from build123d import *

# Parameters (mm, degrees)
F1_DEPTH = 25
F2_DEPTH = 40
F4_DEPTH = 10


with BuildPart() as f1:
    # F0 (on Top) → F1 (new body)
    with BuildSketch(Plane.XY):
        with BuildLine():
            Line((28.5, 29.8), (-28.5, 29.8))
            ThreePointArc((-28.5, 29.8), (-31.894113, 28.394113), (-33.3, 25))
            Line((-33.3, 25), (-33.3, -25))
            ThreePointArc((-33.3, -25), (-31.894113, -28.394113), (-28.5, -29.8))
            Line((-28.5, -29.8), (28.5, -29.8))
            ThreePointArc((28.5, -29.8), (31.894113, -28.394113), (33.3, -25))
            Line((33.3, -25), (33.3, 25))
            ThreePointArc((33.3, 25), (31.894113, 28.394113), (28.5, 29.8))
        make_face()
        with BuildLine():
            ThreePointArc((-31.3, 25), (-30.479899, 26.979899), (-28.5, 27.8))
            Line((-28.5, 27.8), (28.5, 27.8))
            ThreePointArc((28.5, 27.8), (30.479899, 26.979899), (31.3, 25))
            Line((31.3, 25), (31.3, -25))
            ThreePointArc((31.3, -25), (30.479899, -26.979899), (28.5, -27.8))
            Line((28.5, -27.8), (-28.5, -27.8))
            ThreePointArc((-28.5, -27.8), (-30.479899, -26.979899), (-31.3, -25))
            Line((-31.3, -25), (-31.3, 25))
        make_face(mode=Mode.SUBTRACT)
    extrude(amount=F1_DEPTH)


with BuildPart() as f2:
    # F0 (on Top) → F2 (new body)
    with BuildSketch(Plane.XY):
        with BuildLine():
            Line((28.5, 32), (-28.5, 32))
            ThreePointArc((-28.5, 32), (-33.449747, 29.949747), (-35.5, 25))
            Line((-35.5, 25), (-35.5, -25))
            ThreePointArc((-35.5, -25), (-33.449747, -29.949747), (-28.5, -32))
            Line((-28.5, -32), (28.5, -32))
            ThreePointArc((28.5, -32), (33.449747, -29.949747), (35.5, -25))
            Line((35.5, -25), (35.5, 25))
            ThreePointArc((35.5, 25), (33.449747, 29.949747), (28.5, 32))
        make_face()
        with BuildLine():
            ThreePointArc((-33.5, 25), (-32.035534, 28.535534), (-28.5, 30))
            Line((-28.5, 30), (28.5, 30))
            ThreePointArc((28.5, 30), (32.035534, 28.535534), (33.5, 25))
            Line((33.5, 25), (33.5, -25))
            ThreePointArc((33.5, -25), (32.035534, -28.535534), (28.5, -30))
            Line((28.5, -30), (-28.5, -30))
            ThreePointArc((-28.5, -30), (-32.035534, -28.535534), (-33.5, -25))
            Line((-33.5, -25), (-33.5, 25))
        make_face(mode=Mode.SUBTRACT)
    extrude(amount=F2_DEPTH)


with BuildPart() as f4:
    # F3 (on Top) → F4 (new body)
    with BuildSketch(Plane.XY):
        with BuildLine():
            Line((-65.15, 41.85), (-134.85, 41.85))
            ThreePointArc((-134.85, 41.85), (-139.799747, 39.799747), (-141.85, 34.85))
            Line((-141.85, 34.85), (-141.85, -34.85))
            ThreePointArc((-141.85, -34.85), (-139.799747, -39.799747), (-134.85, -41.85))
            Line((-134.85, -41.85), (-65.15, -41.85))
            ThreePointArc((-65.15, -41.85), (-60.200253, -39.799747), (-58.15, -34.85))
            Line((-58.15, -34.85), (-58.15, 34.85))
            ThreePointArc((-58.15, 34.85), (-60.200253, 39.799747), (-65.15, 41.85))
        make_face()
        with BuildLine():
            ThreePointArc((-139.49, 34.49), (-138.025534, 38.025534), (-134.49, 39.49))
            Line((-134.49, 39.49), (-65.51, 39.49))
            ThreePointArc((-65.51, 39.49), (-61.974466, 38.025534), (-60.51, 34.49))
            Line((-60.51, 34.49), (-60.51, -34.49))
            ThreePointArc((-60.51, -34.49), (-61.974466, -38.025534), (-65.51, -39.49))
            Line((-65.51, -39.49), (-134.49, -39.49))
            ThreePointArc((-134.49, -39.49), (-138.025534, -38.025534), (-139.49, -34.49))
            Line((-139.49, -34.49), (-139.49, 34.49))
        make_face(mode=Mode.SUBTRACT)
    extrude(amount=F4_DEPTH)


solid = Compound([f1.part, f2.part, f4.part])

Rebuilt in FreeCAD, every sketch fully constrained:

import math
import FreeCAD as App
import Part
import Sketcher
Q = App.Units.Quantity

doc = App.newDocument("Part")
params = doc.addObject("Spreadsheet::Sheet", "Params")
for row, (alias, value) in enumerate([
    ("sketch1_radius", "4.799998 mm"),
    ("sketch1_radius2", "2.8 mm"),
    ("sketch1_width", "57 mm"),
    ("sketch1_height", "50 mm"),
    ("pad1_length", "25 mm"),
    ("sketch2_radius", "7.000002 mm"),
    ("sketch2_radius2", "5 mm"),
    ("sketch2_width", "57 mm"),
    ("sketch2_height", "50 mm"),
    ("pad2_length", "40 mm"),
    ("sketch3_radius", "7.000002 mm"),
    ("sketch3_radius2", "5 mm"),
    ("sketch3_width", "69.7 mm"),
    ("sketch3_width2", "68.98 mm"),
    ("pad3_length", "10 mm"),
], start=1):
    params.set(f"A{row}", alias)
    params.set(f"B{row}", "=" + value)
    params.setAlias(f"B{row}", alias)

body = doc.addObject("PartDesign::Body", "Body")

# Sketch on XY plane
sketch1 = body.newObject("Sketcher::SketchObject", "Sketch")
sketch1.AttachmentSupport = (doc.getObject("XY_Plane"), [""])
sketch1.MapMode = "FlatFace"
sketch1.addGeometry([
    Part.LineSegment(App.Vector(28.5, 29.8, 0), App.Vector(-28.5, 29.8, 0)),  # 0
    Part.ArcOfCircle(Part.Circle(App.Vector(-28.500002, 25.000002, 0), App.Vector(0, 0, 1), 4.799998), math.radians(89.999982), math.radians(180.000018)),  # 1
    Part.LineSegment(App.Vector(-33.3, 25, 0), App.Vector(-33.3, -25, 0)),  # 2
    Part.ArcOfCircle(Part.Circle(App.Vector(-28.500002, -25.000002, 0), App.Vector(0, 0, 1), 4.799998), math.radians(179.999982), math.radians(270.000018)),  # 3
    Part.LineSegment(App.Vector(-28.5, -29.8, 0), App.Vector(28.5, -29.8, 0)),  # 4
    Part.ArcOfCircle(Part.Circle(App.Vector(28.500002, -25.000002, 0), App.Vector(0, 0, 1), 4.799998), math.radians(-90.000018), math.radians(0.000018)),  # 5
    Part.LineSegment(App.Vector(33.3, -25, 0), App.Vector(33.3, 25, 0)),  # 6
    Part.ArcOfCircle(Part.Circle(App.Vector(28.500002, 25.000002, 0), App.Vector(0, 0, 1), 4.799998), math.radians(-0.000018), math.radians(90.000018)),  # 7
    Part.LineSegment(App.Vector(-31.3, -25, 0), App.Vector(-31.3, 25, 0)),  # 8
    Part.ArcOfCircle(Part.Circle(App.Vector(-28.5, 25, 0), App.Vector(0, 0, 1), 2.8), math.radians(89.999999), math.radians(180.000001)),  # 9
    Part.LineSegment(App.Vector(-28.5, 27.8, 0), App.Vector(28.5, 27.8, 0)),  # 10
    Part.ArcOfCircle(Part.Circle(App.Vector(28.5, 25, 0), App.Vector(0, 0, 1), 2.8), math.radians(-0.000001), math.radians(90.000001)),  # 11
    Part.LineSegment(App.Vector(31.3, 25, 0), App.Vector(31.3, -25, 0)),  # 12
    Part.ArcOfCircle(Part.Circle(App.Vector(28.5, -25, 0), App.Vector(0, 0, 1), 2.8), math.radians(-90.000001), math.radians(0.000001)),  # 13
    Part.LineSegment(App.Vector(28.5, -27.8, 0), App.Vector(-28.5, -27.8, 0)),  # 14
    Part.ArcOfCircle(Part.Circle(App.Vector(-28.5, -25, 0), App.Vector(0, 0, 1), 2.8), math.radians(179.999999), math.radians(270.000001)),  # 15
], False)
sketch1.addConstraint([
    Sketcher.Constraint("Tangent", 0, 2, 1, 1),
    Sketcher.Constraint("Tangent", 1, 2, 2, 1),
    Sketcher.Constraint("Tangent", 2, 2, 3, 1),
    Sketcher.Constraint("Tangent", 3, 2, 4, 1),
    Sketcher.Constraint("Tangent", 4, 2, 5, 1),
    Sketcher.Constraint("Tangent", 5, 2, 6, 1),
    Sketcher.Constraint("Tangent", 6, 2, 7, 1),
    Sketcher.Constraint("Tangent", 7, 2, 0, 1),
    Sketcher.Constraint("Tangent", 8, 2, 9, 2),
    Sketcher.Constraint("Tangent", 9, 1, 10, 1),
    Sketcher.Constraint("Tangent", 10, 2, 11, 2),
    Sketcher.Constraint("Tangent", 11, 1, 12, 1),
    Sketcher.Constraint("Tangent", 12, 2, 13, 2),
    Sketcher.Constraint("Tangent", 13, 1, 14, 1),
    Sketcher.Constraint("Tangent", 14, 2, 15, 2),
    Sketcher.Constraint("Tangent", 15, 1, 8, 1),
    Sketcher.Constraint("Horizontal", 0),
    Sketcher.Constraint("Vertical", 2),
    Sketcher.Constraint("Horizontal", 4),
    Sketcher.Constraint("Vertical", 6),
    Sketcher.Constraint("Vertical", 8),
    Sketcher.Constraint("Horizontal", 10),
    Sketcher.Constraint("Vertical", 12),
    Sketcher.Constraint("Horizontal", 14),
    Sketcher.Constraint("Coincident", 9, 3, 1, 3),
    Sketcher.Constraint("Coincident", 11, 3, 7, 3),
    Sketcher.Constraint("Coincident", 13, 3, 5, 3),
    Sketcher.Constraint("Equal", 1, 3),
    Sketcher.Constraint("Equal", 3, 5),
    Sketcher.Constraint("Equal", 5, 7),
    Sketcher.Constraint("Equal", 13, 15),
    Sketcher.Constraint("Symmetric", 1, 3, 5, 3, -1, 1),
    Sketcher.Constraint("Radius", 1, Q("4.799998 mm")),
    Sketcher.Constraint("Radius", 9, Q("2.8 mm")),
    Sketcher.Constraint("DistanceX", 0, 2, 0, 1, Q("57 mm")),
    Sketcher.Constraint("DistanceY", 2, 2, 2, 1, Q("50 mm")),
])
sketch1.setExpression("Constraints[32]", "Params.sketch1_radius")
sketch1.setExpression("Constraints[33]", "Params.sketch1_radius2")
sketch1.setExpression("Constraints[34]", "Params.sketch1_width")
sketch1.setExpression("Constraints[35]", "Params.sketch1_height")
pad1 = body.newObject("PartDesign::Pad", "Pad")
pad1.Profile = sketch1
pad1.setExpression("Length", "Params.pad1_length")
body2 = doc.addObject("PartDesign::Body", "Body001")

# Sketch on XY plane
sketch2 = body2.newObject("Sketcher::SketchObject", "Sketch001")
sketch2.AttachmentSupport = (doc.getObject("XY_Plane001"), [""])
sketch2.MapMode = "FlatFace"
sketch2.addGeometry([
    Part.LineSegment(App.Vector(28.5, 32, 0), App.Vector(-28.5, 32, 0)),  # 0
    Part.ArcOfCircle(Part.Circle(App.Vector(-28.499998, 24.999998, 0), App.Vector(0, 0, 1), 7.000002), math.radians(90.000013), math.radians(179.999987)),  # 1
    Part.LineSegment(App.Vector(-35.5, 25, 0), App.Vector(-35.5, -25, 0)),  # 2
    Part.ArcOfCircle(Part.Circle(App.Vector(-28.499998, -24.999998, 0), App.Vector(0, 0, 1), 7.000002), math.radians(-179.999987), math.radians(-90.000013)),  # 3
    Part.LineSegment(App.Vector(-28.5, -32, 0), App.Vector(28.5, -32, 0)),  # 4
    Part.ArcOfCircle(Part.Circle(App.Vector(28.499998, -24.999998, 0), App.Vector(0, 0, 1), 7.000002), math.radians(-89.999987), math.radians(-0.000013)),  # 5
    Part.LineSegment(App.Vector(35.5, -25, 0), App.Vector(35.5, 25, 0)),  # 6
    Part.ArcOfCircle(Part.Circle(App.Vector(28.499998, 24.999998, 0), App.Vector(0, 0, 1), 7.000002), math.radians(0.000013), math.radians(89.999987)),  # 7
    Part.LineSegment(App.Vector(-33.5, -25, 0), App.Vector(-33.5, 25, 0)),  # 8
    Part.ArcOfCircle(Part.Circle(App.Vector(-28.5, 25, 0), App.Vector(0, 0, 1), 5), math.radians(89.999996), math.radians(180.000004)),  # 9
    Part.LineSegment(App.Vector(-28.5, 30, 0), App.Vector(28.5, 30, 0)),  # 10
    Part.ArcOfCircle(Part.Circle(App.Vector(28.5, 25, 0), App.Vector(0, 0, 1), 5), math.radians(-0.000004), math.radians(90.000004)),  # 11
    Part.LineSegment(App.Vector(33.5, 25, 0), App.Vector(33.5, -25, 0)),  # 12
    Part.ArcOfCircle(Part.Circle(App.Vector(28.5, -25, 0), App.Vector(0, 0, 1), 5), math.radians(-90.000004), math.radians(0.000004)),  # 13
    Part.LineSegment(App.Vector(28.5, -30, 0), App.Vector(-28.5, -30, 0)),  # 14
    Part.ArcOfCircle(Part.Circle(App.Vector(-28.5, -25, 0), App.Vector(0, 0, 1), 5), math.radians(179.999996), math.radians(270.000004)),  # 15
], False)
sketch2.addConstraint([
    Sketcher.Constraint("Tangent", 0, 2, 1, 1),
    Sketcher.Constraint("Tangent", 1, 2, 2, 1),
    Sketcher.Constraint("Tangent", 2, 2, 3, 1),
    Sketcher.Constraint("Tangent", 3, 2, 4, 1),
    Sketcher.Constraint("Tangent", 4, 2, 5, 1),
    Sketcher.Constraint("Tangent", 5, 2, 6, 1),
    Sketcher.Constraint("Tangent", 6, 2, 7, 1),
    Sketcher.Constraint("Tangent", 7, 2, 0, 1),
    Sketcher.Constraint("Tangent", 8, 2, 9, 2),
    Sketcher.Constraint("Tangent", 9, 1, 10, 1),
    Sketcher.Constraint("Tangent", 10, 2, 11, 2),
    Sketcher.Constraint("Tangent", 11, 1, 12, 1),
    Sketcher.Constraint("Tangent", 12, 2, 13, 2),
    Sketcher.Constraint("Tangent", 13, 1, 14, 1),
    Sketcher.Constraint("Tangent", 14, 2, 15, 2),
    Sketcher.Constraint("Tangent", 15, 1, 8, 1),
    Sketcher.Constraint("Horizontal", 0),
    Sketcher.Constraint("Vertical", 2),
    Sketcher.Constraint("Horizontal", 4),
    Sketcher.Constraint("Vertical", 6),
    Sketcher.Constraint("Vertical", 8),
    Sketcher.Constraint("Horizontal", 10),
    Sketcher.Constraint("Vertical", 12),
    Sketcher.Constraint("Horizontal", 14),
    Sketcher.Constraint("Coincident", 9, 3, 1, 3),
    Sketcher.Constraint("Coincident", 11, 3, 7, 3),
    Sketcher.Constraint("Coincident", 13, 3, 5, 3),
    Sketcher.Constraint("Equal", 1, 3),
    Sketcher.Constraint("Equal", 3, 5),
    Sketcher.Constraint("Equal", 5, 7),
    Sketcher.Constraint("Equal", 13, 15),
    Sketcher.Constraint("Symmetric", 1, 3, 5, 3, -1, 1),
    Sketcher.Constraint("Radius", 1, Q("7.000002 mm")),
    Sketcher.Constraint("Radius", 9, Q("5 mm")),
    Sketcher.Constraint("DistanceX", 0, 2, 0, 1, Q("57 mm")),
    Sketcher.Constraint("DistanceY", 2, 2, 2, 1, Q("50 mm")),
])
sketch2.setExpression("Constraints[32]", "Params.sketch2_radius")
sketch2.setExpression("Constraints[33]", "Params.sketch2_radius2")
sketch2.setExpression("Constraints[34]", "Params.sketch2_width")
sketch2.setExpression("Constraints[35]", "Params.sketch2_height")
pad2 = body2.newObject("PartDesign::Pad", "Pad001")
pad2.Profile = sketch2
pad2.setExpression("Length", "Params.pad2_length")
body3 = doc.addObject("PartDesign::Body", "Body002")

# Sketch on XY plane
sketch3 = body3.newObject("Sketcher::SketchObject", "Sketch002")
sketch3.AttachmentSupport = (doc.getObject("XY_Plane002"), [""])
sketch3.MapMode = "FlatFace"
sketch3.addGeometry([
    Part.LineSegment(App.Vector(-65.15, 41.85, 0), App.Vector(-134.85, 41.85, 0)),  # 0
    Part.ArcOfCircle(Part.Circle(App.Vector(-134.849998, 34.849998, 0), App.Vector(0, 0, 1), 7.000002), math.radians(90.000013), math.radians(179.999987)),  # 1
    Part.LineSegment(App.Vector(-141.85, 34.85, 0), App.Vector(-141.85, -34.85, 0)),  # 2
    Part.ArcOfCircle(Part.Circle(App.Vector(-134.849998, -34.849998, 0), App.Vector(0, 0, 1), 7.000002), math.radians(-179.999987), math.radians(-90.000013)),  # 3
    Part.LineSegment(App.Vector(-134.85, -41.85, 0), App.Vector(-65.15, -41.85, 0)),  # 4
    Part.ArcOfCircle(Part.Circle(App.Vector(-65.150002, -34.849998, 0), App.Vector(0, 0, 1), 7.000002), math.radians(-89.999987), math.radians(-0.000013)),  # 5
    Part.LineSegment(App.Vector(-58.15, -34.85, 0), App.Vector(-58.15, 34.85, 0)),  # 6
    Part.ArcOfCircle(Part.Circle(App.Vector(-65.150002, 34.849998, 0), App.Vector(0, 0, 1), 7.000002), math.radians(0.000013), math.radians(89.999987)),  # 7
    Part.LineSegment(App.Vector(-139.49, -34.49, 0), App.Vector(-139.49, 34.49, 0)),  # 8
    Part.ArcOfCircle(Part.Circle(App.Vector(-134.49, 34.49, 0), App.Vector(0, 0, 1), 5), math.radians(89.999996), math.radians(180.000004)),  # 9
    Part.LineSegment(App.Vector(-134.49, 39.49, 0), App.Vector(-65.51, 39.49, 0)),  # 10
    Part.ArcOfCircle(Part.Circle(App.Vector(-65.51, 34.49, 0), App.Vector(0, 0, 1), 5), math.radians(-0.000004), math.radians(90.000004)),  # 11
    Part.LineSegment(App.Vector(-60.51, 34.49, 0), App.Vector(-60.51, -34.49, 0)),  # 12
    Part.ArcOfCircle(Part.Circle(App.Vector(-65.51, -34.49, 0), App.Vector(0, 0, 1), 5), math.radians(-90.000004), math.radians(0.000004)),  # 13
    Part.LineSegment(App.Vector(-65.51, -39.49, 0), App.Vector(-134.49, -39.49, 0)),  # 14
    Part.ArcOfCircle(Part.Circle(App.Vector(-134.49, -34.49, 0), App.Vector(0, 0, 1), 5), math.radians(179.999996), math.radians(270.000004)),  # 15
], False)
sketch3.addConstraint([
    Sketcher.Constraint("Tangent", 0, 2, 1, 1),
    Sketcher.Constraint("Tangent", 1, 2, 2, 1),
    Sketcher.Constraint("Tangent", 2, 2, 3, 1),
    Sketcher.Constraint("Tangent", 3, 2, 4, 1),
    Sketcher.Constraint("Tangent", 4, 2, 5, 1),
    Sketcher.Constraint("Tangent", 5, 2, 6, 1),
    Sketcher.Constraint("Tangent", 6, 2, 7, 1),
    Sketcher.Constraint("Tangent", 7, 2, 0, 1),
    Sketcher.Constraint("Tangent", 8, 2, 9, 2),
    Sketcher.Constraint("Tangent", 9, 1, 10, 1),
    Sketcher.Constraint("Tangent", 10, 2, 11, 2),
    Sketcher.Constraint("Tangent", 11, 1, 12, 1),
    Sketcher.Constraint("Tangent", 12, 2, 13, 2),
    Sketcher.Constraint("Tangent", 13, 1, 14, 1),
    Sketcher.Constraint("Tangent", 14, 2, 15, 2),
    Sketcher.Constraint("Tangent", 15, 1, 8, 1),
    Sketcher.Constraint("Horizontal", 0),
    Sketcher.Constraint("Vertical", 2),
    Sketcher.Constraint("Horizontal", 4),
    Sketcher.Constraint("Vertical", 6),
    Sketcher.Constraint("Vertical", 8),
    Sketcher.Constraint("Horizontal", 10),
    Sketcher.Constraint("Vertical", 12),
    Sketcher.Constraint("Horizontal", 14),
    Sketcher.Constraint("Equal", 1, 3),
    Sketcher.Constraint("Equal", 3, 5),
    Sketcher.Constraint("Equal", 5, 7),
    Sketcher.Constraint("Equal", 9, 11),
    Sketcher.Constraint("Equal", 11, 13),
    Sketcher.Constraint("Equal", 13, 15),
    Sketcher.Constraint("Equal", 4, 2),
    Sketcher.Constraint("Equal", 14, 8),
    Sketcher.Constraint("Radius", 1, Q("7.000002 mm")),
    Sketcher.Constraint("Radius", 9, Q("5 mm")),
    Sketcher.Constraint("DistanceX", 0, 2, 0, 1, Q("69.7 mm")),
    Sketcher.Constraint("DistanceX", 10, 1, 10, 2, Q("68.98 mm")),
    Sketcher.Constraint("DistanceX", 1, 3, -1, 1, Q("134.849998 mm")),
    Sketcher.Constraint("DistanceY", -1, 1, 1, 3, Q("34.849998 mm")),
    Sketcher.Constraint("DistanceX", 9, 3, -1, 1, Q("134.49 mm")),
    Sketcher.Constraint("DistanceY", -1, 1, 9, 3, Q("34.49 mm")),
])
sketch3.setExpression("Constraints[32]", "Params.sketch3_radius")
sketch3.setExpression("Constraints[33]", "Params.sketch3_radius2")
sketch3.setExpression("Constraints[34]", "Params.sketch3_width")
sketch3.setExpression("Constraints[35]", "Params.sketch3_width2")
pad3 = body3.newObject("PartDesign::Pad", "Pad002")
pad3.Profile = sketch3
pad3.setExpression("Length", "Params.pad3_length")

doc.recompute()
